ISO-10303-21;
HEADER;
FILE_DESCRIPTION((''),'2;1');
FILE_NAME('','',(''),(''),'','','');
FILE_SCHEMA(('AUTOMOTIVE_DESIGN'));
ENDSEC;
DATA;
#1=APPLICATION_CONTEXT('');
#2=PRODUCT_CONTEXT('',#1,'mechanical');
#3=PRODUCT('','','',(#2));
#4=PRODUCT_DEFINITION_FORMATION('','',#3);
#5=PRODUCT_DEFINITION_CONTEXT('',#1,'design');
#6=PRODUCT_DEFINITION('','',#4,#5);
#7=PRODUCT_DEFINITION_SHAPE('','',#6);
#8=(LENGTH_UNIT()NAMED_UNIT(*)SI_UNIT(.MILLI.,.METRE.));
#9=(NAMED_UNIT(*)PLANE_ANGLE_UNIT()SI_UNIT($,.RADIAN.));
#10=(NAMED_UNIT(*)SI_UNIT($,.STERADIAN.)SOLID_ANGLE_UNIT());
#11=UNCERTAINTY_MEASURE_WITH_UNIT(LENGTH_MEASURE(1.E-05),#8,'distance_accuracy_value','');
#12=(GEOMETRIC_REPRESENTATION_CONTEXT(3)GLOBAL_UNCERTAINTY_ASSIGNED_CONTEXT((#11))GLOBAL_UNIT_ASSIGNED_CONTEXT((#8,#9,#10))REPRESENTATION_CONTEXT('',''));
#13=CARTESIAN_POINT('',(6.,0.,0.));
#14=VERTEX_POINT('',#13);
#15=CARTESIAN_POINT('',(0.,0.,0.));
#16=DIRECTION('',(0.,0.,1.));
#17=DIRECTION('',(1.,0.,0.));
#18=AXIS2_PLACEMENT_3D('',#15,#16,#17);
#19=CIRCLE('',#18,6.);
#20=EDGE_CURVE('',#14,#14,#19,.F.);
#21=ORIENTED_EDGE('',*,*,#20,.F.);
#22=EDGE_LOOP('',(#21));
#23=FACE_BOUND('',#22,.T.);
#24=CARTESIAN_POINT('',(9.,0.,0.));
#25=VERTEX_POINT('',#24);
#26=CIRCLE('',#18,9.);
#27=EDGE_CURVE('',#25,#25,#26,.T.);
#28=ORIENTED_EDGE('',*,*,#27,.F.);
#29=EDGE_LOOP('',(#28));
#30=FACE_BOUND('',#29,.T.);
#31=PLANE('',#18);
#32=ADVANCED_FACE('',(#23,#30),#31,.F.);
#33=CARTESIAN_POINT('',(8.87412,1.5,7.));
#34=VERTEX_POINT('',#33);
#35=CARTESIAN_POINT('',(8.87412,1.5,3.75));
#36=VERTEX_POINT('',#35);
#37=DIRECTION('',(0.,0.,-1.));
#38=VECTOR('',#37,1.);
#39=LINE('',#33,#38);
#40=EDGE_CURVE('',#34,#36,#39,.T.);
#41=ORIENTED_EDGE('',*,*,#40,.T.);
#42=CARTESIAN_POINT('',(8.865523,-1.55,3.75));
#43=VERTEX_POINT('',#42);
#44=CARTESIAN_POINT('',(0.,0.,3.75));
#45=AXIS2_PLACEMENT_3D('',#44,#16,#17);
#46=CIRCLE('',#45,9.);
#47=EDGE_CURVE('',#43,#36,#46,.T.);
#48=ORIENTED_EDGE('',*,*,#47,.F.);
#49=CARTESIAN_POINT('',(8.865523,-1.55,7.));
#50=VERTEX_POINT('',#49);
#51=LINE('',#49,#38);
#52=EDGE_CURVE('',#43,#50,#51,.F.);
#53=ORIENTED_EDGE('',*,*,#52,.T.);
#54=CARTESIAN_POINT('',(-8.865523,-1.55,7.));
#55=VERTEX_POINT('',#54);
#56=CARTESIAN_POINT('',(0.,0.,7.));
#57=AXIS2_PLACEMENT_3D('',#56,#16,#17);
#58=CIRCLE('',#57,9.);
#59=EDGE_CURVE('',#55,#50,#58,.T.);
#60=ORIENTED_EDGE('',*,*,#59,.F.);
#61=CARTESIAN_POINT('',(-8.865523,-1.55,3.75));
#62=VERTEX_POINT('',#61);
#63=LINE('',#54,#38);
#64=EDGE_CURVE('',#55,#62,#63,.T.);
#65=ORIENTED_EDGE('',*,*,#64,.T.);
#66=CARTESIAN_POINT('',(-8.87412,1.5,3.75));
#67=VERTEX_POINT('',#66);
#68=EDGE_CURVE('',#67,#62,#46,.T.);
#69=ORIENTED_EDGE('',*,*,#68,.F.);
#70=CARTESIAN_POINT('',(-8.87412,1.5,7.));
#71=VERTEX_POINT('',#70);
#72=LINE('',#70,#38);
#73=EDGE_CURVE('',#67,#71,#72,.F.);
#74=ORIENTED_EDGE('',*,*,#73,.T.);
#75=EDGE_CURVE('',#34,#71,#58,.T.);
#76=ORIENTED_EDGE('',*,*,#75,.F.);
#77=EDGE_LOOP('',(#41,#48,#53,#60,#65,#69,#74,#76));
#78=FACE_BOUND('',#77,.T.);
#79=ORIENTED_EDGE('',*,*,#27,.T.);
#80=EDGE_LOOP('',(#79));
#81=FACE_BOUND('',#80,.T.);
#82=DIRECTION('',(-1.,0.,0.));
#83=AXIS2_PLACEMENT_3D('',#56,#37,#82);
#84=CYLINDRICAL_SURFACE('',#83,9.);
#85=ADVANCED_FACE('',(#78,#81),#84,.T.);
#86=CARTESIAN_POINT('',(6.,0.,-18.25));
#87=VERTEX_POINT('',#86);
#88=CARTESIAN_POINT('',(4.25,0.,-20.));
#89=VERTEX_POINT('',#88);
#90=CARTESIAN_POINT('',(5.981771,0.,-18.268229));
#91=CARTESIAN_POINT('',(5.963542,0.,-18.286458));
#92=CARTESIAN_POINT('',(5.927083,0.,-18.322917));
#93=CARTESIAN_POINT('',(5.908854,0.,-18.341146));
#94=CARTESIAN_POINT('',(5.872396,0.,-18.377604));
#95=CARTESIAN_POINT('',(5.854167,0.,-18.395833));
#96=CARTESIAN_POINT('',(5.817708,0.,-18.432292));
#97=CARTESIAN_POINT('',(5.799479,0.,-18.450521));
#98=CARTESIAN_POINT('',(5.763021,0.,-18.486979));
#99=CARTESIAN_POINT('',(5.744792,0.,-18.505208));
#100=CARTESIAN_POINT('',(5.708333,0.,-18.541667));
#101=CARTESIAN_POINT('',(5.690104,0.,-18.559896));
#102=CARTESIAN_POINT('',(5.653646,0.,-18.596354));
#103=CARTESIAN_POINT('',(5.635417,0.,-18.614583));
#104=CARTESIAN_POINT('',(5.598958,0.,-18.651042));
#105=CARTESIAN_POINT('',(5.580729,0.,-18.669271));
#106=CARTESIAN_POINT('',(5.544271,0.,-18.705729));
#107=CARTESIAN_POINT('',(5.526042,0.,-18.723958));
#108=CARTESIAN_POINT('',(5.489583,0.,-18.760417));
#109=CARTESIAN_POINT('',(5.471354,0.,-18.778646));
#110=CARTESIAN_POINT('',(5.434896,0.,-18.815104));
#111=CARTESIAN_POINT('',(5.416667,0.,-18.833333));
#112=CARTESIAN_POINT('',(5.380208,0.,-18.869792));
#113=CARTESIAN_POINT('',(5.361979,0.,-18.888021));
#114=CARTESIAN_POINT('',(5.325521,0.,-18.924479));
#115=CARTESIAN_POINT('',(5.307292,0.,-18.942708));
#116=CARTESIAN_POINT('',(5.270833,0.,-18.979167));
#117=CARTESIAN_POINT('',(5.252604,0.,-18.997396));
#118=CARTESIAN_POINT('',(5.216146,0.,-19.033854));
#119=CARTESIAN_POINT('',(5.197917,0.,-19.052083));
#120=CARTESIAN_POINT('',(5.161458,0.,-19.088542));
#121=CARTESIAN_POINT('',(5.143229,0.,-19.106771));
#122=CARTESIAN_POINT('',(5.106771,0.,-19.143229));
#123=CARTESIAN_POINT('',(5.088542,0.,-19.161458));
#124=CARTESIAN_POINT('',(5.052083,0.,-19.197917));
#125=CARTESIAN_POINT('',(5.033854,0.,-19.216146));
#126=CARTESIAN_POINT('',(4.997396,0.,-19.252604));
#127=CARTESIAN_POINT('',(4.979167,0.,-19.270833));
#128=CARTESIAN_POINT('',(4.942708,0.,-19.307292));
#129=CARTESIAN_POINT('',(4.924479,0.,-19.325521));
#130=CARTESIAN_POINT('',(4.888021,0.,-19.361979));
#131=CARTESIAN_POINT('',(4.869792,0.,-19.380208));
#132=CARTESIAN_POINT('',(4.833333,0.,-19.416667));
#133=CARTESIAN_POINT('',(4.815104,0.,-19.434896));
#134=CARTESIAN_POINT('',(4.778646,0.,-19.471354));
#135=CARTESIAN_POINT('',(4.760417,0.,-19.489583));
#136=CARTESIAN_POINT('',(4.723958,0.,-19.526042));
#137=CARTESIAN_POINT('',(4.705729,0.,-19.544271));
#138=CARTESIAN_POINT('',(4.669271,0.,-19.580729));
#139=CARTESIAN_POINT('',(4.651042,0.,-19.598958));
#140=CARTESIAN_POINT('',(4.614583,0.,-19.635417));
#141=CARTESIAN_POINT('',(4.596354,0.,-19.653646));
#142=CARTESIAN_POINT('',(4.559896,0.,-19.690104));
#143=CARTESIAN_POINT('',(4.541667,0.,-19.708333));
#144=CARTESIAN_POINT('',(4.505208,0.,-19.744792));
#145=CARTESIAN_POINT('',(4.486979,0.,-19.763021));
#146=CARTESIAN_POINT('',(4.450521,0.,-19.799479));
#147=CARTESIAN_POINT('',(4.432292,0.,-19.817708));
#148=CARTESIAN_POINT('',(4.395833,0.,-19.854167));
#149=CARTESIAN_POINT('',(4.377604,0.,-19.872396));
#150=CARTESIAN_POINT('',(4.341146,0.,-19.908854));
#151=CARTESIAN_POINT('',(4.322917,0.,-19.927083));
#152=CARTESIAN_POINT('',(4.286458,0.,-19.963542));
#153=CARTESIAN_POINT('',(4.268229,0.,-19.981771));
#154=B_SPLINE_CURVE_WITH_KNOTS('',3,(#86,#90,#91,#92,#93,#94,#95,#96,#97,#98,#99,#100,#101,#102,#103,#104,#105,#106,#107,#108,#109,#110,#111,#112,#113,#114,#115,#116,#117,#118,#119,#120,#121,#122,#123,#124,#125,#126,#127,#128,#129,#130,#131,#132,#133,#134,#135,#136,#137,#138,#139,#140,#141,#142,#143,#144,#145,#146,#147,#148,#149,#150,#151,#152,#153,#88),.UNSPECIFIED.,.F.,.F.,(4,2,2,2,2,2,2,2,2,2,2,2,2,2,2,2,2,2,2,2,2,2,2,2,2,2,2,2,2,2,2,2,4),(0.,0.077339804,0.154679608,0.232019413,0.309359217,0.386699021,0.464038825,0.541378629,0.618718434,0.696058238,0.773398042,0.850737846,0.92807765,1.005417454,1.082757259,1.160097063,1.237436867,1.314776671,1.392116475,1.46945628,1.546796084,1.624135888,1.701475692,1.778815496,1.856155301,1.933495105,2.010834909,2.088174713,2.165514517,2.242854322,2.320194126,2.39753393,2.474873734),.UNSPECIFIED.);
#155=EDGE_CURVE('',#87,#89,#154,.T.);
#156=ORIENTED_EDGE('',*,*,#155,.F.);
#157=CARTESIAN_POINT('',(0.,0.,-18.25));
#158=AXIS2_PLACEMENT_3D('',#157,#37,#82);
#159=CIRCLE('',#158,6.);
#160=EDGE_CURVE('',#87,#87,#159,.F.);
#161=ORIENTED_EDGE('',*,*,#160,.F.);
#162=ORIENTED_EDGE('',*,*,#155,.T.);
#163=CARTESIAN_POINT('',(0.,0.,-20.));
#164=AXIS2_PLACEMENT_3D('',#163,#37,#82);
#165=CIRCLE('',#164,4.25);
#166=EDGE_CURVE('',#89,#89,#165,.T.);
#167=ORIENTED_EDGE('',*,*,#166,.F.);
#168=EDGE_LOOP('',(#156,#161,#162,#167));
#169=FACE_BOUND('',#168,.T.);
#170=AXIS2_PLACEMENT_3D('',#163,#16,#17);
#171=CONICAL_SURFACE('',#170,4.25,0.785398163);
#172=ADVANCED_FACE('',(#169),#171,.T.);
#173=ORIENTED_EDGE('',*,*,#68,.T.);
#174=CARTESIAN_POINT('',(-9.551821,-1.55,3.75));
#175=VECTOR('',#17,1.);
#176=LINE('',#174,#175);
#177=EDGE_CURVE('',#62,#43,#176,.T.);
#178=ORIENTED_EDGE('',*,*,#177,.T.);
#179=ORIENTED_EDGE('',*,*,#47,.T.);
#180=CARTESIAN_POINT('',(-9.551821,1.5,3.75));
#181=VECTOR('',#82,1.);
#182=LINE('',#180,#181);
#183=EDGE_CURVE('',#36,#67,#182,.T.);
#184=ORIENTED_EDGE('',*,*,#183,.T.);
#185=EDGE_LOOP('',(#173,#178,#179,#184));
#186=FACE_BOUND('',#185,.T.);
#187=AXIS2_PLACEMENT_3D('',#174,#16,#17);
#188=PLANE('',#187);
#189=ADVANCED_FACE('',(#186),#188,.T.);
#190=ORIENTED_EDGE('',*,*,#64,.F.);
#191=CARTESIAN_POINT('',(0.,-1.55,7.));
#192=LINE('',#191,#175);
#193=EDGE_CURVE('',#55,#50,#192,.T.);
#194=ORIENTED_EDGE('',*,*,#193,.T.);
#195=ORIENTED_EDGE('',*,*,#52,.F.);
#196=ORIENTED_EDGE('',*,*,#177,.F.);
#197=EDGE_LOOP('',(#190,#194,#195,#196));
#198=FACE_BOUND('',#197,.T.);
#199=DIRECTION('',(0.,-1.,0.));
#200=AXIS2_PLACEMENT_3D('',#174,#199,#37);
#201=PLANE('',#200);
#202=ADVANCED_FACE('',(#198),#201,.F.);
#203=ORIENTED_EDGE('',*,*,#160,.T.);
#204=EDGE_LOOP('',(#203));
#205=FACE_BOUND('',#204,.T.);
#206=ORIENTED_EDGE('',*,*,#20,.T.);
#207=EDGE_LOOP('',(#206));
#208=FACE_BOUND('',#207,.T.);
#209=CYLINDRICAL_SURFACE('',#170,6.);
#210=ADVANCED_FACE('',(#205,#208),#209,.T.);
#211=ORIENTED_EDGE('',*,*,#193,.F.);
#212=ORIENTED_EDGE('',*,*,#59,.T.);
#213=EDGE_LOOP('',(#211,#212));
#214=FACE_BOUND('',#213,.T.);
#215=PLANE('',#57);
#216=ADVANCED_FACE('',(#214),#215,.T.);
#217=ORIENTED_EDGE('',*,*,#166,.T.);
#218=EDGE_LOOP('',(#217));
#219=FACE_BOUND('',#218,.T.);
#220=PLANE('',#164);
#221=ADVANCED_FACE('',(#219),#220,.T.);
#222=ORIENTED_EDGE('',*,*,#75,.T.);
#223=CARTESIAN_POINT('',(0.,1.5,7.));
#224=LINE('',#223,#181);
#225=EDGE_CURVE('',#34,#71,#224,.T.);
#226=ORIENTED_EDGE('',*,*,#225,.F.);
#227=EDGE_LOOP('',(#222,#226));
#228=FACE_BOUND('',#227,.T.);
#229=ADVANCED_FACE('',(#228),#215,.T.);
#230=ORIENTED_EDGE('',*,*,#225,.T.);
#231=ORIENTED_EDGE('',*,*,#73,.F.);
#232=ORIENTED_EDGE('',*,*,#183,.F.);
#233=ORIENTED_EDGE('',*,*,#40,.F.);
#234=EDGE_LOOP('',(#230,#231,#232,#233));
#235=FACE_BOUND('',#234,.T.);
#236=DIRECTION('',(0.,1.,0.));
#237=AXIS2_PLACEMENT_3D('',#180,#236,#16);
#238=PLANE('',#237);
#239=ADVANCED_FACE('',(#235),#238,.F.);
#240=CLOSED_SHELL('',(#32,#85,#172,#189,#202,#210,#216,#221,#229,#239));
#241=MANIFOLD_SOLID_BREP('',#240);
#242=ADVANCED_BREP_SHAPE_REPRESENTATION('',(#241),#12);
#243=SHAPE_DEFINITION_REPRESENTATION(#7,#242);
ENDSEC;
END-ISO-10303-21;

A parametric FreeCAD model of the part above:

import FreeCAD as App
import Part
import Sketcher
from FreeCAD import Vector
Q = App.Units.Quantity


def edges_at(feature, points):
    """Names of the edges that pass closest to the given points."""
    edges = feature.Shape.Edges
    near = lambda p: min(range(len(edges)), key=lambda i: edges[i].distToShape(Part.Vertex(*p))[0])
    return sorted({f"Edge{near(p) + 1}" for p in points})


def add_polygon(sketch, points):
    """Adds a closed chain of lines whose ends are joined by coincident constraints."""
    first, n = sketch.GeometryCount, len(points)
    for a, b in zip(points, points[1:] + points[:1]):
        sketch.addGeometry(Part.LineSegment(App.Vector(*a, 0), App.Vector(*b, 0)), False)
    for i in range(n):
        sketch.addConstraint(Sketcher.Constraint("Coincident", first + i, 2, first + (i + 1) % n, 1))

doc = App.newDocument("Part")
body = doc.addObject("PartDesign::Body", "Body")

# Sketch on XY plane
sketch1 = body.newObject("Sketcher::SketchObject", "Sketch")
sketch1.AttachmentSupport = (doc.getObject("XY_Plane"), [""])
sketch1.MapMode = "FlatFace"
sketch1.addGeometry(Part.Circle(Vector(0, 0, 0), Vector(0, 0, 1), 9), False)
sketch1.addConstraint([
    Sketcher.Constraint("Coincident", 0, 3, -1, 1),
    Sketcher.Constraint("Diameter", 0, Q("18 mm")),
])
pad1 = body.newObject("PartDesign::Pad", "Pad")
pad1.Profile = sketch1
pad1.Length = 7

# Sketch on XY plane
sketch2 = body.newObject("Sketcher::SketchObject", "Sketch001")
sketch2.AttachmentSupport = (doc.getObject("XY_Plane"), [""])
sketch2.MapMode = "FlatFace"
sketch2.addGeometry(Part.Circle(Vector(0, 0, 0), Vector(0, 0, 1), 6), False)
sketch2.addConstraint([
    Sketcher.Constraint("Coincident", 0, 3, -1, 1),
    Sketcher.Constraint("Diameter", 0, Q("12 mm")),
])
pad2 = body.newObject("PartDesign::Pad", "Pad001")
pad2.Profile = sketch2
pad2.Length = 20
pad2.Reversed = True

# Sketch on XY plane
sketch3 = body.newObject("Sketcher::SketchObject", "Sketch002")
sketch3.AttachmentSupport = (doc.getObject("XY_Plane"), [""])
sketch3.MapMode = "FlatFace"
sketch3.AttachmentOffset = App.Placement(Vector(0, 0, 7), App.Rotation())
add_polygon(sketch3, [(-9.551821, 1.5), (-9.551821, -1.55), (9.644258, -1.55), (9.644258, 1.5)])  # lines 0-3
sketch3.addConstraint([
    Sketcher.Constraint("Vertical", 0),
    Sketcher.Constraint("Horizontal", 1),
    Sketcher.Constraint("Vertical", 2),
    Sketcher.Constraint("Horizontal", 3),
    Sketcher.Constraint("DistanceY", 0, 2, 0, 1, Q("3.05 mm")),
    Sketcher.Constraint("DistanceY", -1, 1, 2, 2, Q("1.5 mm")),
    Sketcher.Constraint("DistanceX", 1, 1, 1, 2, Q("19.196078 mm")),
    Sketcher.Constraint("DistanceX", 0, 2, -1, 1, Q("9.551821 mm")),
])
pocket1 = body.newObject("PartDesign::Pocket", "Pocket")
pocket1.Profile = sketch3
pocket1.Length = 3.25
doc.recompute()

chamfer = body.newObject("PartDesign::Chamfer", "Chamfer")
chamfer.Base = (pocket1, edges_at(pocket1, [(-6, 0, -20)]))
chamfer.Size = 1.75

doc.recompute()
